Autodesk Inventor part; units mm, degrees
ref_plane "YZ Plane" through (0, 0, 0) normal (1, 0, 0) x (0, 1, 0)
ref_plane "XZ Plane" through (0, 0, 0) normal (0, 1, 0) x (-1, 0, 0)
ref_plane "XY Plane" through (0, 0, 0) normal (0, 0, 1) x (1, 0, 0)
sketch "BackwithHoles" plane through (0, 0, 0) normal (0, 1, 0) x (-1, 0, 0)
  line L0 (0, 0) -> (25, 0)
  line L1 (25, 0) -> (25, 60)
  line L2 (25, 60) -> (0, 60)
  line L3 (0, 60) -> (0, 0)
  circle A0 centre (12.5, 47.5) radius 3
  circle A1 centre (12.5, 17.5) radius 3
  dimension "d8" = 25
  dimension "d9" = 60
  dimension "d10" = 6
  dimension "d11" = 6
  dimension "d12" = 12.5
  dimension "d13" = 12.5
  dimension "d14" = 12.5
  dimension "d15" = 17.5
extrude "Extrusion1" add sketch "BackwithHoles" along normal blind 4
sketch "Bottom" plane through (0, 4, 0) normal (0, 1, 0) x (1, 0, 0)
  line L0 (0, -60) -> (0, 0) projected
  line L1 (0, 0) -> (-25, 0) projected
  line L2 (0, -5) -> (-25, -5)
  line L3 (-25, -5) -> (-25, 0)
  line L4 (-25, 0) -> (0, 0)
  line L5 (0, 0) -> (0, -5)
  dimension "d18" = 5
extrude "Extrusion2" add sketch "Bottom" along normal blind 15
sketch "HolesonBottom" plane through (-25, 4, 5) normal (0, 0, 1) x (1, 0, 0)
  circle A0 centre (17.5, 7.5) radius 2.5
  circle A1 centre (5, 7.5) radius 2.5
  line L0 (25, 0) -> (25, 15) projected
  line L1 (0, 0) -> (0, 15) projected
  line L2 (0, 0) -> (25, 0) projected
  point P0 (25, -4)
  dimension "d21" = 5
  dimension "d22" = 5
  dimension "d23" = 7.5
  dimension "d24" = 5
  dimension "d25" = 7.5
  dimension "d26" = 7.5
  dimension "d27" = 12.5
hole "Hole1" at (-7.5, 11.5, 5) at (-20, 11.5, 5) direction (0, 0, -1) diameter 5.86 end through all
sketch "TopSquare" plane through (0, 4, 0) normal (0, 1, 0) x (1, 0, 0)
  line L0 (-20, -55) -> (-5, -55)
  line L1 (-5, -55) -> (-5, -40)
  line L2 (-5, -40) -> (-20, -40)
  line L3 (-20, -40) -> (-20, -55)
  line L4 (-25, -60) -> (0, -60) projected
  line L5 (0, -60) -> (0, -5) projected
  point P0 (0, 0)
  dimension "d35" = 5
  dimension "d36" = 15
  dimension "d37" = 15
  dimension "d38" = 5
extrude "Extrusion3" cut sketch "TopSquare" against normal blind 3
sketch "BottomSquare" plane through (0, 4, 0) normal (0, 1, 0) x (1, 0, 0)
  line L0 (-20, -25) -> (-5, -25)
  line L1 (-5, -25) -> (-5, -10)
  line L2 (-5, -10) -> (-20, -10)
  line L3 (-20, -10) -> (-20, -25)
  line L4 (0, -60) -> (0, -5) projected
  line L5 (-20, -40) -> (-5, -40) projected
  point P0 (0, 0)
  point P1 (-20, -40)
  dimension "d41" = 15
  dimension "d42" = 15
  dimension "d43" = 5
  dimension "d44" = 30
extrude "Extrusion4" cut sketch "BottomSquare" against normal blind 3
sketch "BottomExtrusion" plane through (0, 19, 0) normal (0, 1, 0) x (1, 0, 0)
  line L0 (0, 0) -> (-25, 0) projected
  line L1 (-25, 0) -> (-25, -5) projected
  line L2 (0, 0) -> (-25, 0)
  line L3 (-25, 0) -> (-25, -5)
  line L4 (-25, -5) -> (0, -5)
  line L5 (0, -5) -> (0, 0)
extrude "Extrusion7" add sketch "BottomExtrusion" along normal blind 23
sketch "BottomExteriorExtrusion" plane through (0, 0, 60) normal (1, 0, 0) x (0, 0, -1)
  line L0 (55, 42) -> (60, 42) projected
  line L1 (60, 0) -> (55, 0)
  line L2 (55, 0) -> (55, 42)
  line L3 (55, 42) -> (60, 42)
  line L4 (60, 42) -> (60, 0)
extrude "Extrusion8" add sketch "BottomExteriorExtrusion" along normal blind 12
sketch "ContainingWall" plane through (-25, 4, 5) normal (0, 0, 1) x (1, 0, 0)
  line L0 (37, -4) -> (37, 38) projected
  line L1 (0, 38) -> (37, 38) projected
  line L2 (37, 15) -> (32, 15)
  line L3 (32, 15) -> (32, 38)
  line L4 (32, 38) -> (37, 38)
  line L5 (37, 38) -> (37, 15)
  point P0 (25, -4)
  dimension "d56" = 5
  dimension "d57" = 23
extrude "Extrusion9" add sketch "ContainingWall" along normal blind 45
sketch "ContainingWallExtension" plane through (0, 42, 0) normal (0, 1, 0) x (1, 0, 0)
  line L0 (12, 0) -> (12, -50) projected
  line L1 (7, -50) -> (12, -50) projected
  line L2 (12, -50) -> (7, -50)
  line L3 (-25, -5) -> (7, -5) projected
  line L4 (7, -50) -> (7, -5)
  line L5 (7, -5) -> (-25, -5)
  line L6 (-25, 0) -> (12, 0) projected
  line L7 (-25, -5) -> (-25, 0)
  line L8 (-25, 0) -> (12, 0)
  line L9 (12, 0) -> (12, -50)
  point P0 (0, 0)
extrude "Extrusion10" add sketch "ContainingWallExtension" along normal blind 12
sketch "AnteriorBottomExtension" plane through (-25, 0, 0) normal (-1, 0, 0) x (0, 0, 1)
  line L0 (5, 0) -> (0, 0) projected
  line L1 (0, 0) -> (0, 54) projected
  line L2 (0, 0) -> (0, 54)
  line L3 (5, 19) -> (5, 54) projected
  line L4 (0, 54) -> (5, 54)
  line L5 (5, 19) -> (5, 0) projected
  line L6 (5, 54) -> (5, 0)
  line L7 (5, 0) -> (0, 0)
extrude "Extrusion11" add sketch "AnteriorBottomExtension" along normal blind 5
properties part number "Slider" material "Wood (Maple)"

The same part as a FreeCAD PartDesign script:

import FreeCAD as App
import Part
import Sketcher


def add_polygon(sketch, points):
    """Adds a closed chain of lines whose ends are joined by coincident constraints."""
    first, n = sketch.GeometryCount, len(points)
    for a, b in zip(points, points[1:] + points[:1]):
        sketch.addGeometry(Part.LineSegment(App.Vector(*a, 0), App.Vector(*b, 0)), False)
    for i in range(n):
        sketch.addConstraint(Sketcher.Constraint("Coincident", first + i, 2, first + (i + 1) % n, 1))

doc = App.newDocument("Part")
params = doc.addObject("Spreadsheet::Sheet", "Params")
for row, (alias, value) in enumerate([
    ("sketch1_diameter", "6 mm"),
    ("sketch1_width", "25 mm"),
    ("sketch1_height", "60 mm"),
    ("pad1_length", "4 mm"),
    ("sketch2_height", "5 mm"),
    ("sketch2_width", "25 mm"),
    ("pad2_length", "15 mm"),
    ("sketch3_diameter", "5.86 mm"),
    ("hole_diameter", "5.86 mm"),
    ("sketch4_width", "15 mm"),
    ("pocket1_length", "3 mm"),
    ("sketch5_width", "15 mm"),
    ("pocket2_length", "3 mm"),
    ("sketch6_width", "25 mm"),
    ("sketch6_height", "5 mm"),
    ("pad3_length", "23 mm"),
    ("sketch7_width", "42 mm"),
    ("sketch7_height", "5 mm"),
    ("pad4_length", "12 mm"),
    ("sketch8_width", "5 mm"),
    ("sketch8_height", "23 mm"),
    ("pad5_length", "45 mm"),
    ("sketch9_width", "37 mm"),
    ("sketch9_width2", "32 mm"),
    ("sketch9_height", "50 mm"),
    ("pad6_length", "12 mm"),
    ("sketch10_width", "54 mm"),
    ("sketch10_height", "5 mm"),
    ("pad7_length", "5 mm"),
], start=1):
    params.set(f"A{row}", alias)
    params.set(f"B{row}", "=" + value)
    params.setAlias(f"B{row}", alias)

body = doc.addObject("PartDesign::Body", "Body")

# Sketch on XZ plane
sketch1 = body.newObject("Sketcher::SketchObject", "Sketch")
sketch1.AttachmentSupport = (doc.getObject("XZ_Plane"), [""])
sketch1.MapMode = "FlatFace"
add_polygon(sketch1, [(0, 60), (0, 0), (-25, 0), (-25, 60)])  # lines 0-3
sketch1.addGeometry(Part.Circle(App.Vector(-12.5, 17.5, 0), App.Vector(0, 0, 1), 3), False)  # 4
sketch1.addGeometry(Part.Circle(App.Vector(-12.5, 47.5, 0), App.Vector(0, 0, 1), 3), False)  # 5
sketch1.addConstraint(Sketcher.Constraint("Vertical", 0))
sketch1.addConstraint(Sketcher.Constraint("Horizontal", 1))
sketch1.addConstraint(Sketcher.Constraint("Vertical", 2))
sketch1.addConstraint(Sketcher.Constraint("Horizontal", 3))
sketch1.addConstraint(Sketcher.Constraint("Coincident", 0, 2, -1, 1))
sketch1.addConstraint(Sketcher.Constraint("Equal", 4, 5))
sketch1.addConstraint(Sketcher.Constraint("Vertical", 4, 3, 5, 3))
sketch1.addConstraint(Sketcher.Constraint("Diameter", 4, 6.0))
sketch1.addConstraint(Sketcher.Constraint("DistanceX", 1, 2, 1, 1, 25.0))
sketch1.addConstraint(Sketcher.Constraint("DistanceY", 0, 2, 0, 1, 60.0))
sketch1.addConstraint(Sketcher.Constraint("DistanceX", 4, 3, -1, 1, 12.5))
sketch1.addConstraint(Sketcher.Constraint("DistanceY", -1, 1, 4, 3, 17.5))
sketch1.addConstraint(Sketcher.Constraint("DistanceY", 5, 3, 2, 2, 12.5))
sketch1.setExpression("Constraints[11]", "Params.sketch1_diameter")
sketch1.setExpression("Constraints[12]", "Params.sketch1_width")
sketch1.setExpression("Constraints[13]", "Params.sketch1_height")
pad1 = body.newObject("PartDesign::Pad", "Pad")
pad1.Profile = sketch1
pad1.setExpression("Length", "Params.pad1_length")
pad1.Reversed = True

# Sketch on XZ plane
sketch2 = body.newObject("Sketcher::SketchObject", "Sketch001")
sketch2.AttachmentSupport = (doc.getObject("XZ_Plane"), [""])
sketch2.MapMode = "FlatFace"
sketch2.AttachmentOffset = App.Placement(App.Vector(0, 0, -4), App.Rotation())
add_polygon(sketch2, [(-25, 5), (0, 5), (0, 0), (-25, 0)])  # lines 0-3
sketch2.addConstraint(Sketcher.Constraint("Horizontal", 0))
sketch2.addConstraint(Sketcher.Constraint("Vertical", 1))
sketch2.addConstraint(Sketcher.Constraint("Horizontal", 2))
sketch2.addConstraint(Sketcher.Constraint("Vertical", 3))
sketch2.addConstraint(Sketcher.Constraint("Coincident", 1, 2, -1, 1))
sketch2.addConstraint(Sketcher.Constraint("DistanceY", 1, 2, 1, 1, 5.0))
sketch2.addConstraint(Sketcher.Constraint("DistanceX", 0, 1, 0, 2, 25.0))
sketch2.setExpression("Constraints[9]", "Params.sketch2_height")
sketch2.setExpression("Constraints[10]", "Params.sketch2_width")
pad2 = body.newObject("PartDesign::Pad", "Pad001")
pad2.Profile = sketch2
pad2.setExpression("Length", "Params.pad2_length")
pad2.Reversed = True

# Sketch on XY plane
sketch3 = body.newObject("Sketcher::SketchObject", "Sketch002")
sketch3.AttachmentSupport = (doc.getObject("XY_Plane"), [""])
sketch3.MapMode = "FlatFace"
sketch3.AttachmentOffset = App.Placement(App.Vector(0, 0, 5), App.Rotation())
sketch3.addGeometry(Part.Circle(App.Vector(-7.5, 11.5, 0), App.Vector(0, 0, 1), 2.9), False)
sketch3.addGeometry(Part.Circle(App.Vector(-20, 11.5, 0), App.Vector(0, 0, 1), 2.9), False)
sketch3.addConstraint(Sketcher.Constraint("Equal", 0, 1))
sketch3.addConstraint(Sketcher.Constraint("Horizontal", 0, 3, 1, 3))
sketch3.addConstraint(Sketcher.Constraint("Diameter", 0, 5.86))
sketch3.addConstraint(Sketcher.Constraint("DistanceX", 1, 3, -1, 1, 20.0))
sketch3.addConstraint(Sketcher.Constraint("DistanceX", 0, 3, -1, 1, 7.5))
sketch3.addConstraint(Sketcher.Constraint("DistanceY", -1, 1, 0, 3, 11.5))
sketch3.setExpression("Constraints[2]", "Params.sketch3_diameter")
doc.recompute()
hole = body.newObject("PartDesign::Hole", "Hole")
hole.Profile = sketch3
hole.ThreadType = "None"
hole.setExpression("Diameter", "Params.hole_diameter")
hole.DepthType = "ThroughAll"

# Sketch on XZ plane
sketch4 = body.newObject("Sketcher::SketchObject", "Sketch003")
sketch4.AttachmentSupport = (doc.getObject("XZ_Plane"), [""])
sketch4.MapMode = "FlatFace"
sketch4.AttachmentOffset = App.Placement(App.Vector(0, 0, -4), App.Rotation())
add_polygon(sketch4, [(-20, 40), (-20, 55), (-5, 55), (-5, 40)])  # lines 0-3
sketch4.addConstraint(Sketcher.Constraint("Vertical", 0))
sketch4.addConstraint(Sketcher.Constraint("Horizontal", 1))
sketch4.addConstraint(Sketcher.Constraint("Vertical", 2))
sketch4.addConstraint(Sketcher.Constraint("Horizontal", 3))
sketch4.addConstraint(Sketcher.Constraint("Equal", 3, 0))
sketch4.addConstraint(Sketcher.Constraint("DistanceX", 1, 1, 1, 2, 15.0))
sketch4.addConstraint(Sketcher.Constraint("DistanceX", 1, 2, -1, 1, 5.0))
sketch4.addConstraint(Sketcher.Constraint("DistanceY", -1, 1, 0, 2, 55.0))
sketch4.setExpression("Constraints[9]", "Params.sketch4_width")
pocket1 = body.newObject("PartDesign::Pocket", "Pocket")
pocket1.Profile = sketch4
pocket1.setExpression("Length", "Params.pocket1_length")
pocket1.Reversed = True

# Sketch on XZ plane
sketch5 = body.newObject("Sketcher::SketchObject", "Sketch004")
sketch5.AttachmentSupport = (doc.getObject("XZ_Plane"), [""])
sketch5.MapMode = "FlatFace"
sketch5.AttachmentOffset = App.Placement(App.Vector(0, 0, -4), App.Rotation())
add_polygon(sketch5, [(-20, 10), (-20, 25), (-5, 25), (-5, 10)])  # lines 0-3
sketch5.addConstraint(Sketcher.Constraint("Vertical", 0))
sketch5.addConstraint(Sketcher.Constraint("Horizontal", 1))
sketch5.addConstraint(Sketcher.Constraint("Vertical", 2))
sketch5.addConstraint(Sketcher.Constraint("Horizontal", 3))
sketch5.addConstraint(Sketcher.Constraint("Equal", 3, 0))
sketch5.addConstraint(Sketcher.Constraint("DistanceX", 1, 1, 1, 2, 15.0))
sketch5.addConstraint(Sketcher.Constraint("DistanceX", 1, 2, -1, 1, 5.0))
sketch5.addConstraint(Sketcher.Constraint("DistanceY", -1, 1, 0, 2, 25.0))
sketch5.setExpression("Constraints[9]", "Params.sketch5_width")
pocket2 = body.newObject("PartDesign::Pocket", "Pocket001")
pocket2.Profile = sketch5
pocket2.setExpression("Length", "Params.pocket2_length")
pocket2.Reversed = True

# Sketch on XZ plane
sketch6 = body.newObject("Sketcher::SketchObject", "Sketch005")
sketch6.AttachmentSupport = (doc.getObject("XZ_Plane"), [""])
sketch6.MapMode = "FlatFace"
sketch6.AttachmentOffset = App.Placement(App.Vector(0, 0, -19), App.Rotation())
add_polygon(sketch6, [(0, 5), (0, 0), (-25, 0), (-25, 5)])  # lines 0-3
sketch6.addConstraint(Sketcher.Constraint("Vertical", 0))
sketch6.addConstraint(Sketcher.Constraint("Horizontal", 1))
sketch6.addConstraint(Sketcher.Constraint("Vertical", 2))
sketch6.addConstraint(Sketcher.Constraint("Horizontal", 3))
sketch6.addConstraint(Sketcher.Constraint("Coincident", 0, 2, -1, 1))
sketch6.addConstraint(Sketcher.Constraint("DistanceX", 1, 2, 1, 1, 25.0))
sketch6.addConstraint(Sketcher.Constraint("DistanceY", 0, 2, 0, 1, 5.0))
sketch6.setExpression("Constraints[9]", "Params.sketch6_width")
sketch6.setExpression("Constraints[10]", "Params.sketch6_height")
pad3 = body.newObject("PartDesign::Pad", "Pad002")
pad3.Profile = sketch6
pad3.setExpression("Length", "Params.pad3_length")
pad3.Reversed = True

# Sketch on YZ plane
sketch7 = body.newObject("Sketcher::SketchObject", "Sketch006")
sketch7.AttachmentSupport = (doc.getObject("YZ_Plane"), [""])
sketch7.MapMode = "FlatFace"
add_polygon(sketch7, [(42, 0), (42, 5), (0, 5), (0, 0)])  # lines 0-3
sketch7.addConstraint(Sketcher.Constraint("Vertical", 0))
sketch7.addConstraint(Sketcher.Constraint("Horizontal", 1))
sketch7.addConstraint(Sketcher.Constraint("Vertical", 2))
sketch7.addConstraint(Sketcher.Constraint("Horizontal", 3))
sketch7.addConstraint(Sketcher.Constraint("Coincident", 2, 2, -1, 1))
sketch7.addConstraint(Sketcher.Constraint("DistanceX", 1, 2, 1, 1, 42.0))
sketch7.addConstraint(Sketcher.Constraint("DistanceY", 0, 1, 0, 2, 5.0))
sketch7.setExpression("Constraints[9]", "Params.sketch7_width")
sketch7.setExpression("Constraints[10]", "Params.sketch7_height")
pad4 = body.newObject("PartDesign::Pad", "Pad003")
pad4.Profile = sketch7
pad4.setExpression("Length", "Params.pad4_length")

# Sketch on XY plane
sketch8 = body.newObject("Sketcher::SketchObject", "Sketch007")
sketch8.AttachmentSupport = (doc.getObject("XY_Plane"), [""])
sketch8.MapMode = "FlatFace"
sketch8.AttachmentOffset = App.Placement(App.Vector(0, 0, 5), App.Rotation())
add_polygon(sketch8, [(7, 19), (12, 19), (12, 42), (7, 42)])  # lines 0-3
sketch8.addConstraint(Sketcher.Constraint("Horizontal", 0))
sketch8.addConstraint(Sketcher.Constraint("Vertical", 1))
sketch8.addConstraint(Sketcher.Constraint("Horizontal", 2))
sketch8.addConstraint(Sketcher.Constraint("Vertical", 3))
sketch8.addConstraint(Sketcher.Constraint("DistanceX", 0, 1, 0, 2, 5.0))
sketch8.addConstraint(Sketcher.Constraint("DistanceY", 1, 1, 1, 2, 23.0))
sketch8.addConstraint(Sketcher.Constraint("DistanceX", -1, 1, 0, 2, 12.0))
sketch8.addConstraint(Sketcher.Constraint("DistanceY", -1, 1, 0, 2, 19.0))
sketch8.setExpression("Constraints[8]", "Params.sketch8_width")
sketch8.setExpression("Constraints[9]", "Params.sketch8_height")
pad5 = body.newObject("PartDesign::Pad", "Pad004")
pad5.Profile = sketch8
pad5.setExpression("Length", "Params.pad5_length")

# Sketch on XZ plane
sketch9 = body.newObject("Sketcher::SketchObject", "Sketch008")
sketch9.AttachmentSupport = (doc.getObject("XZ_Plane"), [""])
sketch9.MapMode = "FlatFace"
sketch9.AttachmentOffset = App.Placement(App.Vector(0, 0, -42), App.Rotation())
add_polygon(sketch9, [(12, 50), (12, 0), (-25, 0), (-25, 5), (7, 5), (7, 50)])  # lines 0-5
sketch9.addConstraint(Sketcher.Constraint("Vertical", 0))
sketch9.addConstraint(Sketcher.Constraint("Horizontal", 1))
sketch9.addConstraint(Sketcher.Constraint("Vertical", 2))
sketch9.addConstraint(Sketcher.Constraint("Horizontal", 3))
sketch9.addConstraint(Sketcher.Constraint("Vertical", 4))
sketch9.addConstraint(Sketcher.Constraint("Horizontal", 5))
sketch9.addConstraint(Sketcher.Constraint("PointOnObject", 0, 2, -1))
sketch9.addConstraint(Sketcher.Constraint("Equal", 5, 2))
sketch9.addConstraint(Sketcher.Constraint("DistanceX", 1, 2, 1, 1, 37.0))
sketch9.addConstraint(Sketcher.Constraint("DistanceX", 3, 1, 3, 2, 32.0))
sketch9.addConstraint(Sketcher.Constraint("DistanceY", 0, 2, 0, 1, 50.0))
sketch9.addConstraint(Sketcher.Constraint("DistanceX", -1, 1, 0, 2, 12.0))
sketch9.setExpression("Constraints[14]", "Params.sketch9_width")
sketch9.setExpression("Constraints[15]", "Params.sketch9_width2")
sketch9.setExpression("Constraints[16]", "Params.sketch9_height")
pad6 = body.newObject("PartDesign::Pad", "Pad005")
pad6.Profile = sketch9
pad6.setExpression("Length", "Params.pad6_length")
pad6.Reversed = True

# Sketch on YZ plane
sketch10 = body.newObject("Sketcher::SketchObject", "Sketch009")
sketch10.AttachmentSupport = (doc.getObject("YZ_Plane"), [""])
sketch10.MapMode = "FlatFace"
sketch10.AttachmentOffset = App.Placement(App.Vector(0, 0, -25), App.Rotation())
add_polygon(sketch10, [(0, 0), (0, 5), (54, 5), (54, 0)])  # lines 0-3
sketch10.addConstraint(Sketcher.Constraint("Vertical", 0))
sketch10.addConstraint(Sketcher.Constraint("Horizontal", 1))
sketch10.addConstraint(Sketcher.Constraint("Vertical", 2))
sketch10.addConstraint(Sketcher.Constraint("Horizontal", 3))
sketch10.addConstraint(Sketcher.Constraint("Coincident", 3, 2, -1, 1))
sketch10.addConstraint(Sketcher.Constraint("DistanceX", 1, 1, 1, 2, 54.0))
sketch10.addConstraint(Sketcher.Constraint("DistanceY", 0, 1, 0, 2, 5.0))
sketch10.setExpression("Constraints[9]", "Params.sketch10_width")
sketch10.setExpression("Constraints[10]", "Params.sketch10_height")
pad7 = body.newObject("PartDesign::Pad", "Pad006")
pad7.Profile = sketch10
pad7.setExpression("Length", "Params.pad7_length")
pad7.Reversed = True

doc.recompute()
